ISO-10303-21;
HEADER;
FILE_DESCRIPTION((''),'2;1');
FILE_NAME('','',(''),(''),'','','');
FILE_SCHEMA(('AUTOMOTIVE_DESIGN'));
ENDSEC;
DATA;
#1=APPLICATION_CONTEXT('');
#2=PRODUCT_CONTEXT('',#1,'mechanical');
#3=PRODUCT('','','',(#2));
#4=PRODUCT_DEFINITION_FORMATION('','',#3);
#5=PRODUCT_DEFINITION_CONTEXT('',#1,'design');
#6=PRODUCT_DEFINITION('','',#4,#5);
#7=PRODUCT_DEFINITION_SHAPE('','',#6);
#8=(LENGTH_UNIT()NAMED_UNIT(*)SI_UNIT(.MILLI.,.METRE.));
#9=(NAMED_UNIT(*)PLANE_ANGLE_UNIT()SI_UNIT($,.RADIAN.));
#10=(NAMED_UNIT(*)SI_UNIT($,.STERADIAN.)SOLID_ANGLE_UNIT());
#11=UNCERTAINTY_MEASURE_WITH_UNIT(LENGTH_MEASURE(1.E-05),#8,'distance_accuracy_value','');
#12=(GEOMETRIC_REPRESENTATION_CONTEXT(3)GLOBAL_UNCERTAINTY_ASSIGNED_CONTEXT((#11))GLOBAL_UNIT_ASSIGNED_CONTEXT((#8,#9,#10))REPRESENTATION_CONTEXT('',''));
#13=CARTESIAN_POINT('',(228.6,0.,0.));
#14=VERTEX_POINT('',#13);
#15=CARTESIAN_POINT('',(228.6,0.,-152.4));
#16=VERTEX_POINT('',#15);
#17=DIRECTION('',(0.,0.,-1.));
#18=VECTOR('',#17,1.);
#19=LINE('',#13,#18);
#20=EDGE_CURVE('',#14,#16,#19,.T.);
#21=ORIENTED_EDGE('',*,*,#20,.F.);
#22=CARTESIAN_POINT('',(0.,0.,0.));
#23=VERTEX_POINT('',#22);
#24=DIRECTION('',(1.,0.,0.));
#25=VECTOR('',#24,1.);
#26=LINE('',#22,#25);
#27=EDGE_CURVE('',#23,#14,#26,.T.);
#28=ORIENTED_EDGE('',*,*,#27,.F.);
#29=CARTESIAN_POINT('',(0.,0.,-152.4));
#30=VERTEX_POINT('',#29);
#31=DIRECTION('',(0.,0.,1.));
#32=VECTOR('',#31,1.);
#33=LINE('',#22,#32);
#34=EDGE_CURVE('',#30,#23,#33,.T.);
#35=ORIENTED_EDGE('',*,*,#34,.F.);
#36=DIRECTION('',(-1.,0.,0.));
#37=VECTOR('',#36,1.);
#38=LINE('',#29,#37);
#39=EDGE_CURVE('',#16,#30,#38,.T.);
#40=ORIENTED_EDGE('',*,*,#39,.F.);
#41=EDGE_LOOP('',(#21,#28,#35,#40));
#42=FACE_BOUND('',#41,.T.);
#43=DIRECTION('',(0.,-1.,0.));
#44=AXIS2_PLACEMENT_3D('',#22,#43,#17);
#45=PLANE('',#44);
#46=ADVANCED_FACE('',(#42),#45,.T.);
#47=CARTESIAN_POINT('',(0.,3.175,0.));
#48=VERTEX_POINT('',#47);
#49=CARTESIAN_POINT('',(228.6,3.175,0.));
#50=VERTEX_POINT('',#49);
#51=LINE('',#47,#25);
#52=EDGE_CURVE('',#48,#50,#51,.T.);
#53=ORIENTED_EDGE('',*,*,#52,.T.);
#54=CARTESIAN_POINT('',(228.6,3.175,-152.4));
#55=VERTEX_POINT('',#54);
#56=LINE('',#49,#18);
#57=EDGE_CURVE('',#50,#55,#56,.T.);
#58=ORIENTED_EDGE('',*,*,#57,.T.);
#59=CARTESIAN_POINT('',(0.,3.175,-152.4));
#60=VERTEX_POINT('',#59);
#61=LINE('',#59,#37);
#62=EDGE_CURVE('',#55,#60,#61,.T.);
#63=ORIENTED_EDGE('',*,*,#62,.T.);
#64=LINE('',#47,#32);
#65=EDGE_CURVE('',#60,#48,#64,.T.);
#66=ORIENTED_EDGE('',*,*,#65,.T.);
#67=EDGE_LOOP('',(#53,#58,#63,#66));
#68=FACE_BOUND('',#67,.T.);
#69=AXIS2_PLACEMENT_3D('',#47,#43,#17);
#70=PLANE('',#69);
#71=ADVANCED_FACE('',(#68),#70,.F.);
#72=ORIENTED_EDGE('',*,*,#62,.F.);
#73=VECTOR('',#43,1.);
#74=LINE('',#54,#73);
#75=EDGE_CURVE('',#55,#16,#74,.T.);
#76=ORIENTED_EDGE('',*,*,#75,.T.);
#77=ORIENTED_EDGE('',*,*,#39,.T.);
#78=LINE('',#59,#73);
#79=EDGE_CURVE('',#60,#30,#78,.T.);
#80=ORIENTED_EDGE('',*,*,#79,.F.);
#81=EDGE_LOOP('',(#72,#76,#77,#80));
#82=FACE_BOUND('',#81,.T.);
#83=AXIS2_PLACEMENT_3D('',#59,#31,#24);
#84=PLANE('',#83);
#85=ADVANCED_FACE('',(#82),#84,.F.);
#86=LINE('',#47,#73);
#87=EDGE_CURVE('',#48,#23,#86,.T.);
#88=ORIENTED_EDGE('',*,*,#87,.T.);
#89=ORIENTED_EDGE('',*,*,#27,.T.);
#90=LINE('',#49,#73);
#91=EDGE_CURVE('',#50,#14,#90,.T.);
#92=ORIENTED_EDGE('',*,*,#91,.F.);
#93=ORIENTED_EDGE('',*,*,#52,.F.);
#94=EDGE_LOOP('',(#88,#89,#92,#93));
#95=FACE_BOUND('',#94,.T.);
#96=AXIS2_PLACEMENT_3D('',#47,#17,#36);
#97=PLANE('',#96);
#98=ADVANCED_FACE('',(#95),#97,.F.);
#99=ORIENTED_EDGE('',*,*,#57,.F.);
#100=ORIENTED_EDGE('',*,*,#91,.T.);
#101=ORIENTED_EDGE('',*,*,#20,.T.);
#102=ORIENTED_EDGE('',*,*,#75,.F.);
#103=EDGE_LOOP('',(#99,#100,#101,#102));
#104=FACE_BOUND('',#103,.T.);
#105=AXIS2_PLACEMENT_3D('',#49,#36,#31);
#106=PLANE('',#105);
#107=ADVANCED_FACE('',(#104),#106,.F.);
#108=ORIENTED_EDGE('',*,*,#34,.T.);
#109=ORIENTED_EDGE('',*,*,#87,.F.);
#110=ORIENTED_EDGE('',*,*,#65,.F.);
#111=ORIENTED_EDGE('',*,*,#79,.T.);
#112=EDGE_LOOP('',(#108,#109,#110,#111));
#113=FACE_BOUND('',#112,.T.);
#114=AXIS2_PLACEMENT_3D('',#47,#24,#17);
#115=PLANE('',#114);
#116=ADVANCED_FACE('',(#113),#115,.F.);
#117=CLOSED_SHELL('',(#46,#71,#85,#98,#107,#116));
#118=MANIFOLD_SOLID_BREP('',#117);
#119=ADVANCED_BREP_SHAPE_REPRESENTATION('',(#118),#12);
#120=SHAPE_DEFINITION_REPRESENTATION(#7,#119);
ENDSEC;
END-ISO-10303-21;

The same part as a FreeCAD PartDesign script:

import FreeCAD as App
import Part
import Sketcher

V = App.Vector
Q = App.Units.Quantity

doc = App.newDocument("Part")
params = doc.addObject("Spreadsheet::Sheet", "Params")
for row, (alias, value) in enumerate([
    ("sketch1_width", "9 in"),
    ("sketch1_height", "6 in"),
    ("pad1_length", "0.125 in"),
], start=1):
    params.set(f"A{row}", alias)
    params.set(f"B{row}", "=" + value)
    params.setAlias(f"B{row}", alias)

body = doc.addObject("PartDesign::Body", "Body")

# Sketch on XZ plane
sketch1 = body.newObject("Sketcher::SketchObject", "Sketch")
sketch1.AttachmentSupport = (doc.getObject("XZ_Plane"), [""])
sketch1.MapMode = "FlatFace"
sketch1.addGeometry(Part.LineSegment(V(0, -152.4, 0), V(0, 0, 0)), False)
sketch1.addGeometry(Part.LineSegment(V(0, 0, 0), V(228.6, 0, 0)), False)
sketch1.addGeometry(Part.LineSegment(V(228.6, 0, 0), V(228.6, -152.4, 0)), False)
sketch1.addGeometry(Part.LineSegment(V(228.6, -152.4, 0), V(0, -152.4, 0)), False)
sketch1.addConstraint(Sketcher.Constraint("Coincident", 0, 2, 1, 1))
sketch1.addConstraint(Sketcher.Constraint("Coincident", 1, 2, 2, 1))
sketch1.addConstraint(Sketcher.Constraint("Coincident", 2, 2, 3, 1))
sketch1.addConstraint(Sketcher.Constraint("Coincident", 3, 2, 0, 1))
sketch1.addConstraint(Sketcher.Constraint("Vertical", 0))
sketch1.addConstraint(Sketcher.Constraint("Horizontal", 1))
sketch1.addConstraint(Sketcher.Constraint("Vertical", 2))
sketch1.addConstraint(Sketcher.Constraint("Horizontal", 3))
sketch1.addConstraint(Sketcher.Constraint("Coincident", 0, 2, -1, 1))
sketch1.addConstraint(Sketcher.Constraint("DistanceX", 1, 1, 1, 2, Q("9 in")))
sketch1.addConstraint(Sketcher.Constraint("DistanceY", 0, 1, 0, 2, Q("6 in")))
sketch1.setExpression("Constraints[9]", "Params.sketch1_width")
sketch1.setExpression("Constraints[10]", "Params.sketch1_height")
pad1 = body.newObject("PartDesign::Pad", "Pad")
pad1.Profile = sketch1
pad1.setExpression("Length", "Params.pad1_length")
pad1.Reversed = True

doc.recompute()
